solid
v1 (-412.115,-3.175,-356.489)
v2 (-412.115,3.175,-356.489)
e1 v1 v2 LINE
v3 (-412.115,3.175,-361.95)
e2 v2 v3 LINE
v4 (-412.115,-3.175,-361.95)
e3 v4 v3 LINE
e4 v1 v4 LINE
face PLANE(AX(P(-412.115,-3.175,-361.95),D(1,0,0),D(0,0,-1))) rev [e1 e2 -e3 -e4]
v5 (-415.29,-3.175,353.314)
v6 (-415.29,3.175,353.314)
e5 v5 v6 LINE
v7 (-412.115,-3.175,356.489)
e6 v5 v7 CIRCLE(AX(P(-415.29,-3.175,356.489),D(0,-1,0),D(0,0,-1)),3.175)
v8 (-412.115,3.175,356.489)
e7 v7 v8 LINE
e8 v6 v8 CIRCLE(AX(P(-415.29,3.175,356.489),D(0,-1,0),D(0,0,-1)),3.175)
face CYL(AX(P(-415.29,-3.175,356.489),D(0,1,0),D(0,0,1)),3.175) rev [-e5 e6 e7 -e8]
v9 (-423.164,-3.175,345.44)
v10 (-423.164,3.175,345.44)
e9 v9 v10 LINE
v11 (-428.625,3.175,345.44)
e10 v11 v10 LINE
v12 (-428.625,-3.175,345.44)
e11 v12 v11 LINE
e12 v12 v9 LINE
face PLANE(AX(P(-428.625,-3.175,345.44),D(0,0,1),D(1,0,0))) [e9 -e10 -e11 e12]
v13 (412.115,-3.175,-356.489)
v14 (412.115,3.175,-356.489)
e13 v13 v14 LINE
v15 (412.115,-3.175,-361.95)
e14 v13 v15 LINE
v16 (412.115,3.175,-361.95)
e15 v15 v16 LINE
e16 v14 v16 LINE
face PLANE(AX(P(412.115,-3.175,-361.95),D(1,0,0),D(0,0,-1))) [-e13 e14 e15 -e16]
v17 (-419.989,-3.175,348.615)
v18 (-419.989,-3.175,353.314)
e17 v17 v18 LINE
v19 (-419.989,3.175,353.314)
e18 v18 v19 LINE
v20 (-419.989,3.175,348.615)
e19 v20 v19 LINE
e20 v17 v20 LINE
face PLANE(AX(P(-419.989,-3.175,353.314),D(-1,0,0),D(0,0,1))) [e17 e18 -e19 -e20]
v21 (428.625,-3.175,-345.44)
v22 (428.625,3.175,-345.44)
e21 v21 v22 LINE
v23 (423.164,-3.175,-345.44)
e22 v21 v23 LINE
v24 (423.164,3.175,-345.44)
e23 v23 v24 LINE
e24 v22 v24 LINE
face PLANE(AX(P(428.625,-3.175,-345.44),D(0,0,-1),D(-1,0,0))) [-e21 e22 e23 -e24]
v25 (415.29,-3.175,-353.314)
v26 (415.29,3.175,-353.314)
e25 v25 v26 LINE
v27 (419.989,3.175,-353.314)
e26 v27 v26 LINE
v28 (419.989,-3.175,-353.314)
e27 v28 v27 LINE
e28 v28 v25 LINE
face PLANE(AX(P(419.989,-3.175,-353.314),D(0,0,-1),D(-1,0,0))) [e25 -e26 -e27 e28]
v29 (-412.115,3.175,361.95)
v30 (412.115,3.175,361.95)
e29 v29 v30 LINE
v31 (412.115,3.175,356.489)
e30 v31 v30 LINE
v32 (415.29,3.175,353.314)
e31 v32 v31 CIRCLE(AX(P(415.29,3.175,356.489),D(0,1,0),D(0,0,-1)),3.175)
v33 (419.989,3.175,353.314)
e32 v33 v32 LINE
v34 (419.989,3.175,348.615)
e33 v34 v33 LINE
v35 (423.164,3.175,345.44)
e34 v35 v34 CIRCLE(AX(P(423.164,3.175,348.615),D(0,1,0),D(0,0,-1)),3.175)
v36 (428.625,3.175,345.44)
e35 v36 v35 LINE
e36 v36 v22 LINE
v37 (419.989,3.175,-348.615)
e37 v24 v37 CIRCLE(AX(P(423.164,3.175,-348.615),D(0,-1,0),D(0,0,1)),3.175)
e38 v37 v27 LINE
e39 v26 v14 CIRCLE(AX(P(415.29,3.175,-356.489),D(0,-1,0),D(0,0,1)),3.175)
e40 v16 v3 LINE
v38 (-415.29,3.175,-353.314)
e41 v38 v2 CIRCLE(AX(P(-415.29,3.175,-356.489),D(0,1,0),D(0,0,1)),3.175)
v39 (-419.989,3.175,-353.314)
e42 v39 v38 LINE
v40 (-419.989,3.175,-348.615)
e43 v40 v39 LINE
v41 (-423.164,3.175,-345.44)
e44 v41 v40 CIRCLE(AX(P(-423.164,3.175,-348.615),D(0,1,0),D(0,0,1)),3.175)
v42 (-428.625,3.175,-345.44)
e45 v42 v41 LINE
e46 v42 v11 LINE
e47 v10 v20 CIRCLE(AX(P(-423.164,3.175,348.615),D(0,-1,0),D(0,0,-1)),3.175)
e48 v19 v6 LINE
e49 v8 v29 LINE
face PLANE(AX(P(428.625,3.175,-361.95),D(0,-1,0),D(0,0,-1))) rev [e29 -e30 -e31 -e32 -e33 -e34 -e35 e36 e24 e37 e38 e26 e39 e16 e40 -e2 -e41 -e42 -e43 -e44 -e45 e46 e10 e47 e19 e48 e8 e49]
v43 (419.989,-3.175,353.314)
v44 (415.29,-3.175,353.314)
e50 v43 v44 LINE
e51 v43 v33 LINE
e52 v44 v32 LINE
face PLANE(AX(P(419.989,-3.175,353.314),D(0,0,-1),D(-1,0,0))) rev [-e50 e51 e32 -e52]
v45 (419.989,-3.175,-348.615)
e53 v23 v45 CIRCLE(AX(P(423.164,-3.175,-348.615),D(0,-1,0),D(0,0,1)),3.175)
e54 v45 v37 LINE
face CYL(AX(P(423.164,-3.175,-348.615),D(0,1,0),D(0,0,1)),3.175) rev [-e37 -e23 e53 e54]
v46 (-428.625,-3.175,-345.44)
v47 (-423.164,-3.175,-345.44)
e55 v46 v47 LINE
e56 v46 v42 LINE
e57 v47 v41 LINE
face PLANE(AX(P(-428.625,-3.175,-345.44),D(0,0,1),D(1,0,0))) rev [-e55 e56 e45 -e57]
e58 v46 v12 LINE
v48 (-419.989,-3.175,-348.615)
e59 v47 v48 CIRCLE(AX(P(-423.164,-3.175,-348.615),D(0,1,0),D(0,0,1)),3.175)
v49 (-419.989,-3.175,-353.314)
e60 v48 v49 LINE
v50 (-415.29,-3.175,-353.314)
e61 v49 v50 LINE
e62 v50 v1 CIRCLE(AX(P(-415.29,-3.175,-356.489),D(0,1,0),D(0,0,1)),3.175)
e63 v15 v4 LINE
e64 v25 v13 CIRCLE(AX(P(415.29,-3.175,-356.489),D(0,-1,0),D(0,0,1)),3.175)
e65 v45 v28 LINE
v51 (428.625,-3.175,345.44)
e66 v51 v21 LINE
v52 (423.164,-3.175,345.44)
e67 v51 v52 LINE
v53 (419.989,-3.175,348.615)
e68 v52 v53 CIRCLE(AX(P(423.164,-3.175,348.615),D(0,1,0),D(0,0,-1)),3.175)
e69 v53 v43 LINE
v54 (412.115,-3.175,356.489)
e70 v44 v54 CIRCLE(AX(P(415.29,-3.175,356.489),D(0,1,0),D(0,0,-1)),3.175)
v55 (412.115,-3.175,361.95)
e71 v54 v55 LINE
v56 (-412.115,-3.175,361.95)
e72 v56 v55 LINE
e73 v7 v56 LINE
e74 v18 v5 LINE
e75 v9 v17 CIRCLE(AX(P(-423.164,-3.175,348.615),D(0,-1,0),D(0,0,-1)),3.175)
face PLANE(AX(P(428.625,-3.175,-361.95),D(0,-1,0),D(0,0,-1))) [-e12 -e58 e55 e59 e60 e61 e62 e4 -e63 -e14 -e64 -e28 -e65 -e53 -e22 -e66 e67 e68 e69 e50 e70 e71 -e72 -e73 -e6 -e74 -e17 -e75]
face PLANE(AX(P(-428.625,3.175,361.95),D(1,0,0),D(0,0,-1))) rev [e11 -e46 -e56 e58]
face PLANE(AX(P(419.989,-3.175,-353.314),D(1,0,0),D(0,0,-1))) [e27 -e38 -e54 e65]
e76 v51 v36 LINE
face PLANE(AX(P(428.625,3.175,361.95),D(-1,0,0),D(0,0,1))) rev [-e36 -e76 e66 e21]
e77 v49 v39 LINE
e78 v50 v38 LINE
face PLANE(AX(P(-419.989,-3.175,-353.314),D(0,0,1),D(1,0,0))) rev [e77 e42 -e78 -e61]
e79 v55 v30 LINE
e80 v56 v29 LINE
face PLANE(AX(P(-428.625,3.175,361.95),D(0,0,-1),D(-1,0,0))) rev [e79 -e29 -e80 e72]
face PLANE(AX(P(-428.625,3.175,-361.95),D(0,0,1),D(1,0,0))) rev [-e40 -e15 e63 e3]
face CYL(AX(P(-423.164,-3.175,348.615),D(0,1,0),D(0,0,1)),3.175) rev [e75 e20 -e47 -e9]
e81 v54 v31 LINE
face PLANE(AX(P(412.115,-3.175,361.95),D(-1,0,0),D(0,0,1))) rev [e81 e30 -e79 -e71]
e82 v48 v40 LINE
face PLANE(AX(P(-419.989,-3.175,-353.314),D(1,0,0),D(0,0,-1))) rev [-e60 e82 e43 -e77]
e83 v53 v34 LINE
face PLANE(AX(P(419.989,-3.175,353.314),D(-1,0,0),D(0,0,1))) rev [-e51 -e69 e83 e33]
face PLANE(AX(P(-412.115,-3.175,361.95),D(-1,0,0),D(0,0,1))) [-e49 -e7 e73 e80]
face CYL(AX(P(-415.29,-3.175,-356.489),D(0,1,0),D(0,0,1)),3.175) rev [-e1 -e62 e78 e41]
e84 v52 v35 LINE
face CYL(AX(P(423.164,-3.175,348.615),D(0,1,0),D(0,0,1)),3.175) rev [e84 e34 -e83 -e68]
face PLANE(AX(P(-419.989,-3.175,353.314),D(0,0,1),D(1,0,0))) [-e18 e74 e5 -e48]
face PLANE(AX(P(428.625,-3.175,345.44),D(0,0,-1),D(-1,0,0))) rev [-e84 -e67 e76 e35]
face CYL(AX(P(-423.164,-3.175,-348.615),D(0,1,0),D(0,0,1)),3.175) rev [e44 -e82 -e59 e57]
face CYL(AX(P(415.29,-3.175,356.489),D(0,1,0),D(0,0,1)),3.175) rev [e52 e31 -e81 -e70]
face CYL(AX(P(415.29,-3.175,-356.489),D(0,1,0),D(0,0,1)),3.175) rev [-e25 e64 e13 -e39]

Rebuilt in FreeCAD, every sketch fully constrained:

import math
import FreeCAD as App
import Part
import Sketcher

V = App.Vector
Q = App.Units.Quantity


def add_polygon(sketch, points):
    """Adds a closed chain of lines whose ends are joined by coincident constraints."""
    first, n = sketch.GeometryCount, len(points)
    for a, b in zip(points, points[1:] + points[:1]):
        sketch.addGeometry(Part.LineSegment(App.Vector(*a, 0), App.Vector(*b, 0)), False)
    for i in range(n):
        sketch.addConstraint(Sketcher.Constraint("Coincident", first + i, 2, first + (i + 1) % n, 1))

doc = App.newDocument("Part")
body = doc.addObject("PartDesign::Body", "Body")

sketch1 = body.newObject("Sketcher::SketchObject", "Sketch")
sketch1.AttachmentSupport = (doc.getObject("XZ_Plane"), [""])
sketch1.MapMode = "FlatFace"
add_polygon(sketch1, [(-429, -362), (-429, 362), (429, 362), (429, -362)])
sketch1.addConstraint(Sketcher.Constraint("Vertical", 0))
sketch1.addConstraint(Sketcher.Constraint("Horizontal", 1))
sketch1.addConstraint(Sketcher.Constraint("Vertical", 2))
sketch1.addConstraint(Sketcher.Constraint("Horizontal", 3))
sketch1.addConstraint(Sketcher.Constraint("Symmetric", 0, 2, 2, 2, -1, 1))
sketch1.addConstraint(Sketcher.Constraint("DistanceY", 0, 1, 0, 2, Q("28.5 in")))
sketch1.addConstraint(Sketcher.Constraint("DistanceX", 1, 1, 1, 2, Q("33.75 in")))
pad1 = body.newObject("PartDesign::Pad", "Pad")
pad1.Profile = sketch1
pad1.Length = Q("0.25 in")
pad1.Midplane = True

sketch2 = body.newObject("Sketcher::SketchObject", "Sketch001")
sketch2.AttachmentSupport = (doc.getObject("XZ_Plane"), [""])
sketch2.MapMode = "FlatFace"
sketch2.AttachmentOffset = App.Placement(V(0, 0, -0.125 * 25.4), App.Rotation())
sketch2.addGeometry(Part.LineSegment(V(-412.1, -361.9, 0), V(-428.6, -361.9, 0)), False)
sketch2.addGeometry(Part.LineSegment(V(-428.6, -361.9, 0), V(-428.6, -345.4, 0)), False)
sketch2.addGeometry(Part.LineSegment(V(-428.6, -345.4, 0), V(-423.2, -345.4, 0)), False)
sketch2.addGeometry(Part.ArcOfCircle(Part.Circle(V(-423.2, -348.6, 0), V(0, 0, 1), 3.2), math.radians(0), math.radians(90)), False)
sketch2.addGeometry(Part.LineSegment(V(-420, -348.6, 0), V(-420, -353.3, 0)), False)
sketch2.addGeometry(Part.LineSegment(V(-420, -353.3, 0), V(-415.3, -353.3, 0)), False)
sketch2.addGeometry(Part.ArcOfCircle(Part.Circle(V(-415.3, -356.5, 0), V(0, 0, 1), 3.2), math.radians(0), math.radians(90)), False)
sketch2.addGeometry(Part.LineSegment(V(-412.1, -356.5, 0), V(-412.1, -361.9, 0)), False)
sketch2.addConstraint(Sketcher.Constraint("Coincident", 0, 2, 1, 1))
sketch2.addConstraint(Sketcher.Constraint("Coincident", 1, 2, 2, 1))
sketch2.addConstraint(Sketcher.Constraint("Tangent", 2, 2, 3, 2))
sketch2.addConstraint(Sketcher.Constraint("Tangent", 3, 1, 4, 1))
sketch2.addConstraint(Sketcher.Constraint("Coincident", 4, 2, 5, 1))
sketch2.addConstraint(Sketcher.Constraint("Tangent", 5, 2, 6, 2))
sketch2.addConstraint(Sketcher.Constraint("Tangent", 6, 1, 7, 1))
sketch2.addConstraint(Sketcher.Constraint("Coincident", 7, 2, 0, 1))
sketch2.addConstraint(Sketcher.Constraint("Horizontal", 0))
sketch2.addConstraint(Sketcher.Constraint("Vertical", 1))
sketch2.addConstraint(Sketcher.Constraint("Horizontal", 2))
sketch2.addConstraint(Sketcher.Constraint("Vertical", 4))
sketch2.addConstraint(Sketcher.Constraint("Horizontal", 5))
sketch2.addConstraint(Sketcher.Constraint("Vertical", 7))
sketch2.addConstraint(Sketcher.Constraint("Equal", 3, 6))
sketch2.addConstraint(Sketcher.Constraint("Equal", 0, 1))
sketch2.addConstraint(Sketcher.Constraint("Equal", 5, 4))
sketch2.addConstraint(Sketcher.Constraint("Radius", 3, Q("0.125 in")))
sketch2.addConstraint(Sketcher.Constraint("DistanceX", 0, 2, 0, 1, Q("0.65 in")))
sketch2.addConstraint(Sketcher.Constraint("DistanceY", 1, 2, -1, 1, Q("13.6 in")))
sketch2.addConstraint(Sketcher.Constraint("DistanceX", 2, 1, 2, 2, Q("0.215 in")))
sketch2.addConstraint(Sketcher.Constraint("DistanceX", 3, 3, -1, 1, Q("16.66 in")))
pocket1 = body.newObject("PartDesign::Pocket", "Pocket")
pocket1.Profile = sketch2
pocket1.Type = "ThroughAll"
pocket1.Reversed = True
doc.recompute()

mirrored = body.newObject("PartDesign::Mirrored", "Mirrored")
mirrored.Originals = [pocket1]
mirrored.MirrorPlane = (doc.getObject("YZ_Plane"), [""])
body.Tip = mirrored
doc.recompute()

mirrored2 = body.newObject("PartDesign::Mirrored", "Mirrored001")
mirrored2.Originals = [pocket1]
mirrored2.MirrorPlane = (doc.getObject("XY_Plane"), [""])
body.Tip = mirrored2

sketch3 = body.newObject("Sketcher::SketchObject", "Sketch002")
sketch3.AttachmentSupport = (doc.getObject("XZ_Plane"), [""])
sketch3.MapMode = "FlatFace"
sketch3.AttachmentOffset = App.Placement(V(0, 0, -0.125 * 25.4), App.Rotation())
sketch3.addGeometry(Part.LineSegment(V(412.1, 361.9, 0), V(428.6, 361.9, 0)), False)
sketch3.addGeometry(Part.LineSegment(V(428.6, 361.9, 0), V(428.6, 345.4, 0)), False)
sketch3.addGeometry(Part.LineSegment(V(428.6, 345.4, 0), V(423.2, 345.4, 0)), False)
sketch3.addGeometry(Part.ArcOfCircle(Part.Circle(V(423.2, 348.6, 0), V(0, 0, 1), 3.2), math.radians(-180), math.radians(-90)), False)
sketch3.addGeometry(Part.LineSegment(V(420, 348.6, 0), V(420, 353.3, 0)), False)
sketch3.addGeometry(Part.LineSegment(V(420, 353.3, 0), V(415.3, 353.3, 0)), False)
sketch3.addGeometry(Part.ArcOfCircle(Part.Circle(V(415.3, 356.5, 0), V(0, 0, 1), 3.2), math.radians(-180), math.radians(-90)), False)
sketch3.addGeometry(Part.LineSegment(V(412.1, 356.5, 0), V(412.1, 361.9, 0)), False)
sketch3.addConstraint(Sketcher.Constraint("Coincident", 0, 2, 1, 1))
sketch3.addConstraint(Sketcher.Constraint("Coincident", 1, 2, 2, 1))
sketch3.addConstraint(Sketcher.Constraint("Tangent", 2, 2, 3, 2))
sketch3.addConstraint(Sketcher.Constraint("Tangent", 3, 1, 4, 1))
sketch3.addConstraint(Sketcher.Constraint("Coincident", 4, 2, 5, 1))
sketch3.addConstraint(Sketcher.Constraint("Tangent", 5, 2, 6, 2))
sketch3.addConstraint(Sketcher.Constraint("Tangent", 6, 1, 7, 1))
sketch3.addConstraint(Sketcher.Constraint("Coincident", 7, 2, 0, 1))
sketch3.addConstraint(Sketcher.Constraint("Horizontal", 0))
sketch3.addConstraint(Sketcher.Constraint("Vertical", 1))
sketch3.addConstraint(Sketcher.Constraint("Horizontal", 2))
sketch3.addConstraint(Sketcher.Constraint("Vertical", 4))
sketch3.addConstraint(Sketcher.Constraint("Horizontal", 5))
sketch3.addConstraint(Sketcher.Constraint("Vertical", 7))
sketch3.addConstraint(Sketcher.Constraint("Equal", 3, 6))
sketch3.addConstraint(Sketcher.Constraint("Equal", 0, 1))
sketch3.addConstraint(Sketcher.Constraint("Equal", 5, 4))
sketch3.addConstraint(Sketcher.Constraint("Radius", 3, Q("0.125 in")))
sketch3.addConstraint(Sketcher.Constraint("DistanceX", 0, 1, 0, 2, Q("0.65 in")))
sketch3.addConstraint(Sketcher.Constraint("DistanceY", -1, 1, 1, 2, Q("13.6 in")))
sketch3.addConstraint(Sketcher.Constraint("DistanceX", 2, 2, 2, 1, Q("0.215 in")))
sketch3.addConstraint(Sketcher.Constraint("DistanceX", -1, 1, 3, 3, Q("16.66 in")))
pocket2 = body.newObject("PartDesign::Pocket", "Pocket001")
pocket2.Profile = sketch3
pocket2.Type = "ThroughAll"
pocket2.Reversed = True

doc.recompute()
